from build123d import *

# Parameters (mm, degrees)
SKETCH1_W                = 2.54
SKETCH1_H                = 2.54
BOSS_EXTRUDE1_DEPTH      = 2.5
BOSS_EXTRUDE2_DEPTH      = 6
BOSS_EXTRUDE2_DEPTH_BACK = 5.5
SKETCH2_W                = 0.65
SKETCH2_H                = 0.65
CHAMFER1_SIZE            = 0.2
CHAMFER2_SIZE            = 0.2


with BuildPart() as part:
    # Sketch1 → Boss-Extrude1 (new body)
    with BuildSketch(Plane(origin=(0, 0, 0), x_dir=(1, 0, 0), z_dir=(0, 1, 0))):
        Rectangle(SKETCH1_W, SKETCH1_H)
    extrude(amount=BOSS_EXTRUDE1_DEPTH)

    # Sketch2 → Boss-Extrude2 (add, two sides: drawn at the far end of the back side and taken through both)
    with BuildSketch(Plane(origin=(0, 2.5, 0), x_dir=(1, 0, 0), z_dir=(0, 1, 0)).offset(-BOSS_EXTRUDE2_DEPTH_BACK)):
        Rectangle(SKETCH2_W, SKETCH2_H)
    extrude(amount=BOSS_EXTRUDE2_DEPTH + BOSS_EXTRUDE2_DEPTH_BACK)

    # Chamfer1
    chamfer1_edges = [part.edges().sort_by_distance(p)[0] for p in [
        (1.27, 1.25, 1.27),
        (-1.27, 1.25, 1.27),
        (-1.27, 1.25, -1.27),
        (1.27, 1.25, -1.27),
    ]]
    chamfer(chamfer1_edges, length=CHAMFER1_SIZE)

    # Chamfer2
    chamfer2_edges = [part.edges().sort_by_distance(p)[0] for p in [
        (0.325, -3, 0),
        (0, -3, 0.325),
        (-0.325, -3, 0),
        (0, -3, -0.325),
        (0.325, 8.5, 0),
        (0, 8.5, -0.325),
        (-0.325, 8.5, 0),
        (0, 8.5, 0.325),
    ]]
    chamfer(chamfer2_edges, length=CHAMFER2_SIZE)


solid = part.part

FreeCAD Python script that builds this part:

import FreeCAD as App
import Part
import Sketcher

V = App.Vector
Q = App.Units.Quantity


def edges_at(feature, points):
    """Names of the edges that pass closest to the given points."""
    edges = feature.Shape.Edges
    near = lambda p: min(range(len(edges)), key=lambda i: edges[i].distToShape(Part.Vertex(*p))[0])
    return sorted({f"Edge{near(p) + 1}" for p in points})

doc = App.newDocument("Part")
body = doc.addObject("PartDesign::Body", "Body")

sketch1 = doc.addObject("Sketcher::SketchObject", "Sketch")
body.addObject(sketch1)
sketch1.AttachmentSupport = (doc.XZ_Plane, [""])
sketch1.MapMode = "FlatFace"
sketch1.addGeometry([
    Part.LineSegment(V(-1.3, -1.3, 0), V(-1.3, 1.3, 0)),
    Part.LineSegment(V(-1.3, 1.3, 0), V(1.3, 1.3, 0)),
    Part.LineSegment(V(1.3, 1.3, 0), V(1.3, -1.3, 0)),
    Part.LineSegment(V(1.3, -1.3, 0), V(-1.3, -1.3, 0)),
], False)
sketch1.addConstraint([
    Sketcher.Constraint("Coincident", 0, 2, 1, 1),
    Sketcher.Constraint("Coincident", 1, 2, 2, 1),
    Sketcher.Constraint("Coincident", 2, 2, 3, 1),
    Sketcher.Constraint("Coincident", 3, 2, 0, 1),
    Sketcher.Constraint("Vertical", 0),
    Sketcher.Constraint("Horizontal", 1),
    Sketcher.Constraint("Vertical", 2),
    Sketcher.Constraint("Horizontal", 3),
    Sketcher.Constraint("Symmetric", 0, 2, 2, 2, -1, 1),
    Sketcher.Constraint("Equal", 3, 0),
    Sketcher.Constraint("DistanceX", 1, 1, 1, 2, Q("2.54 mm")),
])
pad1 = doc.addObject("PartDesign::Pad", "Pad")
body.addObject(pad1)
pad1.Profile = sketch1
pad1.Length = 2.5
pad1.Reversed = True

sketch2 = doc.addObject("Sketcher::SketchObject", "Sketch001")
body.addObject(sketch2)
sketch2.AttachmentSupport = (doc.XZ_Plane, [""])
sketch2.MapMode = "FlatFace"
sketch2.AttachmentOffset = App.Placement(V(0, 0, -2.5), App.Rotation())
sketch2.addGeometry([
    Part.LineSegment(V(-0.3, -0.3, 0), V(-0.3, 0.3, 0)),
    Part.LineSegment(V(-0.3, 0.3, 0), V(0.3, 0.3, 0)),
    Part.LineSegment(V(0.3, 0.3, 0), V(0.3, -0.3, 0)),
    Part.LineSegment(V(0.3, -0.3, 0), V(-0.3, -0.3, 0)),
], False)
sketch2.addConstraint([
    Sketcher.Constraint("Coincident", 0, 2, 1, 1),
    Sketcher.Constraint("Coincident", 1, 2, 2, 1),
    Sketcher.Constraint("Coincident", 2, 2, 3, 1),
    Sketcher.Constraint("Coincident", 3, 2, 0, 1),
    Sketcher.Constraint("Vertical", 0),
    Sketcher.Constraint("Horizontal", 1),
    Sketcher.Constraint("Vertical", 2),
    Sketcher.Constraint("Horizontal", 3),
    Sketcher.Constraint("Symmetric", 0, 2, 2, 2, -1, 1),
    Sketcher.Constraint("Equal", 3, 0),
    Sketcher.Constraint("DistanceX", 1, 1, 1, 2, Q("0.65 mm")),
])
pad2 = doc.addObject("PartDesign::Pad", "Pad001")
body.addObject(pad2)
pad2.Profile = sketch2
pad2.Type = "TwoLengths"
pad2.Length = 6
pad2.Length2 = 5.5
pad2.Reversed = True
doc.recompute()

chamfer = doc.addObject("PartDesign::Chamfer", "Chamfer")
body.addObject(chamfer)
chamfer.Base = (pad2, edges_at(pad2, [
    (1.27, 1.25, 1.27),
    (-1.27, 1.25, 1.27),
    (-1.27, 1.25, -1.27),
    (1.27, 1.25, -1.27),
]))
chamfer.Size = 0.2
doc.recompute()

chamfer2 = doc.addObject("PartDesign::Chamfer", "Chamfer001")
body.addObject(chamfer2)
chamfer2.Base = (chamfer, edges_at(chamfer, [
    (0.325, -3, 0),
    (0, -3, 0.325),
    (-0.325, -3, 0),
    (0, -3, -0.325),
    (0.325, 8.5, 0),
    (0, 8.5, -0.325),
    (-0.325, 8.5, 0),
    (0, 8.5, 0.325),
]))
chamfer2.Size = 0.2

doc.recompute()
